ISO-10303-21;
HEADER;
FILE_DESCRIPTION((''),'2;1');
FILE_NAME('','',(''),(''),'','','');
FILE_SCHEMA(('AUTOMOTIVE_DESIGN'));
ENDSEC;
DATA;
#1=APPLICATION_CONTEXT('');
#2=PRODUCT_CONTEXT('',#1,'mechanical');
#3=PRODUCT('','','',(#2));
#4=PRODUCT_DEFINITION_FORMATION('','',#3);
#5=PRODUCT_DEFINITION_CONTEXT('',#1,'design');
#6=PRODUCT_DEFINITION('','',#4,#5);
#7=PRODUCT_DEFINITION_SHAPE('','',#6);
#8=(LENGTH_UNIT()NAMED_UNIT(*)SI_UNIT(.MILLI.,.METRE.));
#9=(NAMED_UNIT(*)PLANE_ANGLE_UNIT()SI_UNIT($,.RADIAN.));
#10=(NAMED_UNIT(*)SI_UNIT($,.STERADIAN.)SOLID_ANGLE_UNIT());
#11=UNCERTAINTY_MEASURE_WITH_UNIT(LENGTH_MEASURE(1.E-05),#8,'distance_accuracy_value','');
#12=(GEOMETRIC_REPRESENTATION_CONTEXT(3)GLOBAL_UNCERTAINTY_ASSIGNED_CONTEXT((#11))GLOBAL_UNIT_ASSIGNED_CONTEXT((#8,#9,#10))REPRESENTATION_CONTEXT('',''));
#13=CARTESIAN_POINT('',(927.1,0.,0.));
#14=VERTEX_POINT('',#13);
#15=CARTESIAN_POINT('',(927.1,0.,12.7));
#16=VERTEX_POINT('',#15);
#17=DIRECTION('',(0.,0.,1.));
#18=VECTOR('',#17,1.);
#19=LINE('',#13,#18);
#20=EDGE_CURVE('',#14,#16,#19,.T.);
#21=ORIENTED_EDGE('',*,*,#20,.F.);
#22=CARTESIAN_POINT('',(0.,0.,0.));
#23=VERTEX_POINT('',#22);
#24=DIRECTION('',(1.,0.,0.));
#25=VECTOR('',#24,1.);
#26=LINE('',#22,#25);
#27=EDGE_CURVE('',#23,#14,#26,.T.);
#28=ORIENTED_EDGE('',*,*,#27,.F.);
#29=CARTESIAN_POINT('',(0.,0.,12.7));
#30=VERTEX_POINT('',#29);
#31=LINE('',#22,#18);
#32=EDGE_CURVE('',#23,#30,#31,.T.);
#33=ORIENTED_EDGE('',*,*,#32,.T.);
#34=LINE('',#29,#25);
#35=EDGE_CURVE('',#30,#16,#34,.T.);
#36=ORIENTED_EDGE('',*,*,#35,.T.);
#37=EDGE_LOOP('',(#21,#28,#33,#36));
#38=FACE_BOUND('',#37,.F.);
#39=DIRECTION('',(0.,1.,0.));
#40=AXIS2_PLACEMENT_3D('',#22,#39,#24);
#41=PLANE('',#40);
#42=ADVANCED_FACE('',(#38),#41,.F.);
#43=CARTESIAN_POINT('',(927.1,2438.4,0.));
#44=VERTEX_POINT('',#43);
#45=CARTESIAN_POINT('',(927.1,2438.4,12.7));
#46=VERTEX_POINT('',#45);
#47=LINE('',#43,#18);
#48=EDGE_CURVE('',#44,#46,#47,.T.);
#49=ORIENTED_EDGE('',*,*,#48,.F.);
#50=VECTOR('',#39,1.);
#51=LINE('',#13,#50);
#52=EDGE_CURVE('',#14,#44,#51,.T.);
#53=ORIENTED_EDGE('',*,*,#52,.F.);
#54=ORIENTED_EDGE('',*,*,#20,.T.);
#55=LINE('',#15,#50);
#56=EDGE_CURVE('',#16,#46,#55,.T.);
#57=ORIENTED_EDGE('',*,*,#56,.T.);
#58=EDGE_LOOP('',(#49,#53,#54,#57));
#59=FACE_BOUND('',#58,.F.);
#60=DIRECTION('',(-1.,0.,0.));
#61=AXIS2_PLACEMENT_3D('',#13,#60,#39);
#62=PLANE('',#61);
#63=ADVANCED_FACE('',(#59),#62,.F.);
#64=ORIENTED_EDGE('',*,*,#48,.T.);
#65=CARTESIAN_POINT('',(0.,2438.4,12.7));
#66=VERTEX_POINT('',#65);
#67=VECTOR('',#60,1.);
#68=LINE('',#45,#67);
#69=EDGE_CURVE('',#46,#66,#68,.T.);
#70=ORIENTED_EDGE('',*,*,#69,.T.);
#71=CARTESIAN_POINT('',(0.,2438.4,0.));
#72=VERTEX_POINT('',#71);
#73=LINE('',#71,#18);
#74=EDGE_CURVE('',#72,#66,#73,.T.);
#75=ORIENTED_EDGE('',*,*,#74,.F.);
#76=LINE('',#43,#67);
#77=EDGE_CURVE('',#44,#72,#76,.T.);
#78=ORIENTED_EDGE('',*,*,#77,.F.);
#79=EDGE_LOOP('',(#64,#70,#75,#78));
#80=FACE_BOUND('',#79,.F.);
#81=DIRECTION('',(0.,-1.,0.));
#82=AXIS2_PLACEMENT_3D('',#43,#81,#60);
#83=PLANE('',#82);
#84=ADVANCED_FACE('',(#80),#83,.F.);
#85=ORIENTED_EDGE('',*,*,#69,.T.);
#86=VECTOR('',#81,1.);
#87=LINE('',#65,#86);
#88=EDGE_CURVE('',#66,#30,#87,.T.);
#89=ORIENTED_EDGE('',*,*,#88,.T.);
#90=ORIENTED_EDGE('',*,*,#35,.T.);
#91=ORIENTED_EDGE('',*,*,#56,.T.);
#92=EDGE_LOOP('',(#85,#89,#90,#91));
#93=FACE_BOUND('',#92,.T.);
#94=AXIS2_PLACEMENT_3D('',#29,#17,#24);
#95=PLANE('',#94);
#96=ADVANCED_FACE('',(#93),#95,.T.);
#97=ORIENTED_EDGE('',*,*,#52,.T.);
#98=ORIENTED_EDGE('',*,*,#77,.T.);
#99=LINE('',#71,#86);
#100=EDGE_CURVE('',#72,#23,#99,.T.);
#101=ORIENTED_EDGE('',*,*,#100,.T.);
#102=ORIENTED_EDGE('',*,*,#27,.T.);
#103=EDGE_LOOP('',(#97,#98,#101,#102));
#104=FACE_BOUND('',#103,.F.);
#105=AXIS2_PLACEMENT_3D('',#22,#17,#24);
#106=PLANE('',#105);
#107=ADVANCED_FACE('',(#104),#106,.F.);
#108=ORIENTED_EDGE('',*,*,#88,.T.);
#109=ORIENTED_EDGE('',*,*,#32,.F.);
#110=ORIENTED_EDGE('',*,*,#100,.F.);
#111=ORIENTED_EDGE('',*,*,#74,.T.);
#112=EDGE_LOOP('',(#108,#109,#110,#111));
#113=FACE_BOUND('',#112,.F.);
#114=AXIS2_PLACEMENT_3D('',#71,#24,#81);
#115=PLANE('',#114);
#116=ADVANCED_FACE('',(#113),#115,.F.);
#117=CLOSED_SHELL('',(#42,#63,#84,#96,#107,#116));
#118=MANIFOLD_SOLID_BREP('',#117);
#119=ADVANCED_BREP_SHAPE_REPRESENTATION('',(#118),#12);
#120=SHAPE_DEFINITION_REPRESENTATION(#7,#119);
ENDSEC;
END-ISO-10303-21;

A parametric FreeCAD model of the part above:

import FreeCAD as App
import Part
import Sketcher
Q = App.Units.Quantity

doc = App.newDocument("Part")
body = doc.addObject("PartDesign::Body", "Body")

sketch1 = body.newObject("Sketcher::SketchObject", "Sketch")
sketch1.AttachmentSupport = (doc.getObject("XY_Plane"), [""])
sketch1.MapMode = "FlatFace"
sketch1.addGeometry(Part.LineSegment(App.Vector(0, 2438, 0), App.Vector(0, 0, 0)), False)
sketch1.addGeometry(Part.LineSegment(App.Vector(0, 0, 0), App.Vector(927, 0, 0)), False)
sketch1.addGeometry(Part.LineSegment(App.Vector(927, 0, 0), App.Vector(927, 2438, 0)), False)
sketch1.addGeometry(Part.LineSegment(App.Vector(927, 2438, 0), App.Vector(0, 2438, 0)), False)
sketch1.addConstraint(Sketcher.Constraint("Coincident", 0, 2, 1, 1))
sketch1.addConstraint(Sketcher.Constraint("Coincident", 1, 2, 2, 1))
sketch1.addConstraint(Sketcher.Constraint("Coincident", 2, 2, 3, 1))
sketch1.addConstraint(Sketcher.Constraint("Coincident", 3, 2, 0, 1))
sketch1.addConstraint(Sketcher.Constraint("Vertical", 0))
sketch1.addConstraint(Sketcher.Constraint("Horizontal", 1))
sketch1.addConstraint(Sketcher.Constraint("Vertical", 2))
sketch1.addConstraint(Sketcher.Constraint("Horizontal", 3))
sketch1.addConstraint(Sketcher.Constraint("Coincident", 0, 2, -1, 1))
sketch1.addConstraint(Sketcher.Constraint("DistanceY", 0, 2, 0, 1, Q("96 in")))
sketch1.addConstraint(Sketcher.Constraint("DistanceX", 1, 1, 1, 2, Q("36.5 in")))
pad1 = body.newObject("PartDesign::Pad", "Pad")
pad1.Profile = sketch1
pad1.Length = Q("0.5 in")

doc.recompute()
